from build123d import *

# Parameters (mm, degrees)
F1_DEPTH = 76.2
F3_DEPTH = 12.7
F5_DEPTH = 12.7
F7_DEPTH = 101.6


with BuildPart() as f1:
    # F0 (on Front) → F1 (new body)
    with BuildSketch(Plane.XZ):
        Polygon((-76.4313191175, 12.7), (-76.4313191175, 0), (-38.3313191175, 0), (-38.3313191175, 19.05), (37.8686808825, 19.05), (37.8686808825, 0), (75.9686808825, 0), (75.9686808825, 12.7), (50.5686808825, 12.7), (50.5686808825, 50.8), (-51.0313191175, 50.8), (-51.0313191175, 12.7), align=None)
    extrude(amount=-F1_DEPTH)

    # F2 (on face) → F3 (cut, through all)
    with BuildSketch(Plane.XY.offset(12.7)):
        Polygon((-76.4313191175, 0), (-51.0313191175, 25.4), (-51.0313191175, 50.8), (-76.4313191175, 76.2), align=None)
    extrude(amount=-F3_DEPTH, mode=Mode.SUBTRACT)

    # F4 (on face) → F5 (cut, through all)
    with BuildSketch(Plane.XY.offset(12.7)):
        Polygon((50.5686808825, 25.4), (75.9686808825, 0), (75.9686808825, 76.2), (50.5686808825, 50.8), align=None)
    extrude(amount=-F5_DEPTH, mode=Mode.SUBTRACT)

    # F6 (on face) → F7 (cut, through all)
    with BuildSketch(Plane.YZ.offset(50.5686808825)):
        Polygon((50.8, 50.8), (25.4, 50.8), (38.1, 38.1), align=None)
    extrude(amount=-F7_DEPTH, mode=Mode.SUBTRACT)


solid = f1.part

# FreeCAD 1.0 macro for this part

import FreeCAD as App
import Part
import Sketcher
Q = App.Units.Quantity


def add_polygon(sketch, points):
    """Adds a closed chain of lines whose ends are joined by coincident constraints."""
    first, n = sketch.GeometryCount, len(points)
    for a, b in zip(points, points[1:] + points[:1]):
        sketch.addGeometry(Part.LineSegment(App.Vector(*a, 0), App.Vector(*b, 0)), False)
    for i in range(n):
        sketch.addConstraint(Sketcher.Constraint("Coincident", first + i, 2, first + (i + 1) % n, 1))

doc = App.newDocument("Part")
params = doc.addObject("Spreadsheet::Sheet", "Params")
for row, (alias, value) in enumerate([
    ("sketch1_width", "3 in"),
    ("sketch1_width2", "1 in"),
    ("sketch1_width3", "4 in"),
    ("sketch1_height", "0.5 in"),
    ("sketch1_height2", "0.75 in"),
    ("pad1_length", "3 in"),
    ("sketch2_height", "1 in"),
    ("sketch2_height2", "3 in"),
    ("sketch3_height", "3 in"),
    ("sketch3_height2", "1 in"),
    ("sketch4_width", "1 in"),
], start=1):
    params.set(f"A{row}", alias)
    params.set(f"B{row}", "=" + value)
    params.setAlias(f"B{row}", alias)

body = doc.addObject("PartDesign::Body", "Body")

# Sketch on XZ plane
sketch1 = body.newObject("Sketcher::SketchObject", "Sketch")
sketch1.AttachmentSupport = (doc.getObject("XZ_Plane"), [""])
sketch1.MapMode = "FlatFace"
add_polygon(sketch1, [(-76, 13), (-76, 0), (-38, 0), (-38, 19), (38, 19), (38, 0), (76, 0), (76, 13), (51, 13), (51, 51), (-51, 51), (-51, 13)])  # lines 0-11
sketch1.addConstraint([
    Sketcher.Constraint("Vertical", 0),
    Sketcher.Constraint("Horizontal", 1),
    Sketcher.Constraint("Vertical", 2),
    Sketcher.Constraint("Horizontal", 3),
    Sketcher.Constraint("Vertical", 4),
    Sketcher.Constraint("Horizontal", 5),
    Sketcher.Constraint("Vertical", 6),
    Sketcher.Constraint("Horizontal", 7),
    Sketcher.Constraint("Vertical", 8),
    Sketcher.Constraint("Horizontal", 9),
    Sketcher.Constraint("Vertical", 10),
    Sketcher.Constraint("Horizontal", 11),
    Sketcher.Constraint("PointOnObject", 0, 2, -1),
    Sketcher.Constraint("PointOnObject", 4, 2, -1),
    Sketcher.Constraint("Horizontal", 7, 2, 10, 2),
    Sketcher.Constraint("Equal", 1, 5),
    Sketcher.Constraint("Equal", 7, 11),
    Sketcher.Constraint("Equal", 5, 8),
    Sketcher.Constraint("DistanceX", 3, 1, 3, 2, Q("3 in")),
    Sketcher.Constraint("DistanceX", 7, 2, 7, 1, Q("1 in")),
    Sketcher.Constraint("DistanceX", 9, 2, 9, 1, Q("4 in")),
    Sketcher.Constraint("DistanceY", 0, 2, 0, 1, Q("0.5 in")),
    Sketcher.Constraint("DistanceY", 2, 1, 2, 2, Q("0.75 in")),
    Sketcher.Constraint("DistanceX", 0, 2, -1, 1, 76.431319),
])
sketch1.setExpression("Constraints[30]", "Params.sketch1_width")
sketch1.setExpression("Constraints[31]", "Params.sketch1_width2")
sketch1.setExpression("Constraints[32]", "Params.sketch1_width3")
sketch1.setExpression("Constraints[33]", "Params.sketch1_height")
sketch1.setExpression("Constraints[34]", "Params.sketch1_height2")
pad1 = body.newObject("PartDesign::Pad", "Pad")
pad1.Profile = sketch1
pad1.setExpression("Length", "Params.pad1_length")
pad1.Reversed = True

# Sketch on XY plane
sketch2 = body.newObject("Sketcher::SketchObject", "Sketch001")
sketch2.AttachmentSupport = (doc.getObject("XY_Plane"), [""])
sketch2.MapMode = "FlatFace"
sketch2.AttachmentOffset = App.Placement(App.Vector(0, 0, 0.5 * 25.4), App.Rotation())
add_polygon(sketch2, [(-76, 0), (-51, 25), (-51, 51), (-76, 76)])  # lines 0-3
sketch2.addConstraint([
    Sketcher.Constraint("Vertical", 1),
    Sketcher.Constraint("Vertical", 3),
    Sketcher.Constraint("PointOnObject", 3, 2, -1),
    Sketcher.Constraint("Perpendicular", 0, 2),
    Sketcher.Constraint("Equal", 0, 2),
    Sketcher.Constraint("DistanceY", 1, 1, 1, 2, Q("1 in")),
    Sketcher.Constraint("DistanceY", 3, 2, 3, 1, Q("3 in")),
    Sketcher.Constraint("DistanceX", 0, 2, -1, 1, 51.031319),
])
sketch2.setExpression("Constraints[9]", "Params.sketch2_height")
sketch2.setExpression("Constraints[10]", "Params.sketch2_height2")
pocket1 = body.newObject("PartDesign::Pocket", "Pocket")
pocket1.Profile = sketch2
pocket1.Type = "ThroughAll"

# Sketch on XY plane
sketch3 = body.newObject("Sketcher::SketchObject", "Sketch002")
sketch3.AttachmentSupport = (doc.getObject("XY_Plane"), [""])
sketch3.MapMode = "FlatFace"
sketch3.AttachmentOffset = App.Placement(App.Vector(0, 0, 0.5 * 25.4), App.Rotation())
add_polygon(sketch3, [(51, 25), (76, 0), (76, 76), (51, 51)])  # lines 0-3
sketch3.addConstraint([
    Sketcher.Constraint("Vertical", 1),
    Sketcher.Constraint("Vertical", 3),
    Sketcher.Constraint("PointOnObject", 0, 2, -1),
    Sketcher.Constraint("Perpendicular", 0, 2),
    Sketcher.Constraint("Equal", 0, 2),
    Sketcher.Constraint("DistanceY", 1, 1, 1, 2, Q("3 in")),
    Sketcher.Constraint("DistanceY", 3, 2, 3, 1, Q("1 in")),
    Sketcher.Constraint("DistanceX", -1, 1, 0, 2, 75.968681),
])
sketch3.setExpression("Constraints[9]", "Params.sketch3_height")
sketch3.setExpression("Constraints[10]", "Params.sketch3_height2")
pocket2 = body.newObject("PartDesign::Pocket", "Pocket001")
pocket2.Profile = sketch3
pocket2.Type = "ThroughAll"

# Sketch on YZ plane
sketch4 = body.newObject("Sketcher::SketchObject", "Sketch003")
sketch4.AttachmentSupport = (doc.getObject("YZ_Plane"), [""])
sketch4.MapMode = "FlatFace"
sketch4.AttachmentOffset = App.Placement(App.Vector(0, 0, 50.568681), App.Rotation())
add_polygon(sketch4, [(51, 51), (25, 51), (38, 38)])  # lines 0-2
sketch4.addConstraint([
    Sketcher.Constraint("Horizontal", 0),
    Sketcher.Constraint("Perpendicular", 1, 2),
    Sketcher.Constraint("Equal", 1, 2),
    Sketcher.Constraint("DistanceX", 0, 2, 0, 1, Q("1 in")),
    Sketcher.Constraint("DistanceX", -1, 1, 0, 2, Q("1 in")),
    Sketcher.Constraint("DistanceY", -1, 1, 0, 2, Q("2 in")),
])
sketch4.setExpression("Constraints[6]", "Params.sketch4_width")
pocket3 = body.newObject("PartDesign::Pocket", "Pocket002")
pocket3.Profile = sketch4
pocket3.Type = "ThroughAll"

doc.recompute()
